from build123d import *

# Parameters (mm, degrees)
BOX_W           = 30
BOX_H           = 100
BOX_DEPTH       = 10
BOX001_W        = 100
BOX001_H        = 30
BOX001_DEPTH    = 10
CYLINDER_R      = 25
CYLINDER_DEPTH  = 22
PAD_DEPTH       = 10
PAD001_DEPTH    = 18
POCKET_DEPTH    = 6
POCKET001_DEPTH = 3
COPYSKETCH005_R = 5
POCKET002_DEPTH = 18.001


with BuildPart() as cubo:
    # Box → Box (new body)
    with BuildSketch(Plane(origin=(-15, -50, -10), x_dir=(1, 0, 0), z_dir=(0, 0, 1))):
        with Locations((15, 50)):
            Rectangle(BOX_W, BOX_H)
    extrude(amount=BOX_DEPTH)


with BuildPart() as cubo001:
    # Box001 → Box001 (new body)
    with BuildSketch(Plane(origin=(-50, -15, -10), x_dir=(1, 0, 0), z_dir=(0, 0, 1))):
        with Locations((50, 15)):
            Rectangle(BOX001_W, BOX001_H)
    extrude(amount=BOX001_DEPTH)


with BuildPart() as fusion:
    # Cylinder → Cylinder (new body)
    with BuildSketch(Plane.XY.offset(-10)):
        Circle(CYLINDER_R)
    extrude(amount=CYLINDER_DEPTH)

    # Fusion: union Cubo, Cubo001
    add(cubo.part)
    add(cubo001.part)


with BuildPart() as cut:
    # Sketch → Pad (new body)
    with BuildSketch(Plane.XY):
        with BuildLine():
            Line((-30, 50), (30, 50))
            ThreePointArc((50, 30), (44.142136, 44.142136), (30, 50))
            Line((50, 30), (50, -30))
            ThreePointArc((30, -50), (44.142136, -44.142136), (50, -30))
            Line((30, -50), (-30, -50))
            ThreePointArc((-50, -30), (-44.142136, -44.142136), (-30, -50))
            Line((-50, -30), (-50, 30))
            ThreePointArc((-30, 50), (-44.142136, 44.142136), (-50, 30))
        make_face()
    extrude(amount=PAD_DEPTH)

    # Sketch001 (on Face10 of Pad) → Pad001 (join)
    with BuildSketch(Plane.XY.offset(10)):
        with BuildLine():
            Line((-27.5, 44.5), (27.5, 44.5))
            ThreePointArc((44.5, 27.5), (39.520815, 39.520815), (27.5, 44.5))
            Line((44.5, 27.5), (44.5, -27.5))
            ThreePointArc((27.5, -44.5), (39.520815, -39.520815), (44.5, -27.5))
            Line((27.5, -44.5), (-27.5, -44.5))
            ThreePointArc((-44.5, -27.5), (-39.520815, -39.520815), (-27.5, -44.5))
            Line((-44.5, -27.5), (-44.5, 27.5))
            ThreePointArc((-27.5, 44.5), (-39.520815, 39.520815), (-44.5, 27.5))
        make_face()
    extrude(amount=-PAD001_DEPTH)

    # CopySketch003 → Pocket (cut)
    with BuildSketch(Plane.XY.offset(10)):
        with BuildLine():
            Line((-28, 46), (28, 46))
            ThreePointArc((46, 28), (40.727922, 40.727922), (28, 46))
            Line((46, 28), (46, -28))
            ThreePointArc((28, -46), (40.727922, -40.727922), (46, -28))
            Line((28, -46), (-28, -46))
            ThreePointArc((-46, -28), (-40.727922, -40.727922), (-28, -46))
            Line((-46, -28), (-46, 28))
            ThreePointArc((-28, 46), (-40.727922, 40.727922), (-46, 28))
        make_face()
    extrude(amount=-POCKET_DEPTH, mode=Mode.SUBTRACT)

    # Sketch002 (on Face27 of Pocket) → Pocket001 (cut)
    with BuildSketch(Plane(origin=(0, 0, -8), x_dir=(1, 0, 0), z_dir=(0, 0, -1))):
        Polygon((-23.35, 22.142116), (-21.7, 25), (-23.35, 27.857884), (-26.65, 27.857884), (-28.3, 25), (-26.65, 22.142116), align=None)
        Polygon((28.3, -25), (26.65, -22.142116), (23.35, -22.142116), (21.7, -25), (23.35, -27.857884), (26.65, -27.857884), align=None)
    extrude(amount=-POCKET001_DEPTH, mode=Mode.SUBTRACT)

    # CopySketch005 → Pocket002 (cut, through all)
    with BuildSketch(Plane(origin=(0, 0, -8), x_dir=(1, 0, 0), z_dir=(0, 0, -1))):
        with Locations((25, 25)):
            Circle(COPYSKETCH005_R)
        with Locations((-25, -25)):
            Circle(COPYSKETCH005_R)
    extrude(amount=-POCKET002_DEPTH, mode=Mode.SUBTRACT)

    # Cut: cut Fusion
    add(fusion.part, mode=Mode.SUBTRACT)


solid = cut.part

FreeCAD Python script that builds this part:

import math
import FreeCAD as App
import Part
import Sketcher

V = App.Vector
Q = App.Units.Quantity

doc = App.newDocument("Part")
body = doc.addObject("PartDesign::Body", "Body")

# Sketch on XY plane
sketch1 = doc.addObject("Sketcher::SketchObject", "Sketch")
body.addObject(sketch1)
sketch1.AttachmentSupport = (doc.XY_Plane, [""])
sketch1.MapMode = "FlatFace"
sketch1.AttachmentOffset = App.Placement(V(0, 0, -10), App.Rotation())
sketch1.addGeometry([
    Part.LineSegment(V(-15, 50, 0), V(-15, -50, 0)),
    Part.LineSegment(V(-15, -50, 0), V(15, -50, 0)),
    Part.LineSegment(V(15, -50, 0), V(15, 50, 0)),
    Part.LineSegment(V(15, 50, 0), V(-15, 50, 0)),
], False)
sketch1.addConstraint([
    Sketcher.Constraint("Coincident", 0, 2, 1, 1),
    Sketcher.Constraint("Coincident", 1, 2, 2, 1),
    Sketcher.Constraint("Coincident", 2, 2, 3, 1),
    Sketcher.Constraint("Coincident", 3, 2, 0, 1),
    Sketcher.Constraint("Vertical", 0),
    Sketcher.Constraint("Horizontal", 1),
    Sketcher.Constraint("Vertical", 2),
    Sketcher.Constraint("Horizontal", 3),
    Sketcher.Constraint("Symmetric", 0, 2, 2, 2, -1, 1),
    Sketcher.Constraint("DistanceX", 1, 1, 1, 2, 30.0),
    Sketcher.Constraint("DistanceY", 0, 2, 0, 1, 100.0),
])
pad1 = doc.addObject("PartDesign::Pad", "Pad")
body.addObject(pad1)
pad1.Profile = sketch1
pad1.Length = 10
body2 = doc.addObject("PartDesign::Body", "Body001")

# Sketch on XY plane
sketch2 = doc.addObject("Sketcher::SketchObject", "Sketch001")
body2.addObject(sketch2)
sketch2.AttachmentSupport = (doc.getObject("XY_Plane001"), [""])
sketch2.MapMode = "FlatFace"
sketch2.AttachmentOffset = App.Placement(V(0, 0, -10), App.Rotation())
sketch2.addGeometry([
    Part.LineSegment(V(-50, 15, 0), V(-50, -15, 0)),
    Part.LineSegment(V(-50, -15, 0), V(50, -15, 0)),
    Part.LineSegment(V(50, -15, 0), V(50, 15, 0)),
    Part.LineSegment(V(50, 15, 0), V(-50, 15, 0)),
], False)
sketch2.addConstraint([
    Sketcher.Constraint("Coincident", 0, 2, 1, 1),
    Sketcher.Constraint("Coincident", 1, 2, 2, 1),
    Sketcher.Constraint("Coincident", 2, 2, 3, 1),
    Sketcher.Constraint("Coincident", 3, 2, 0, 1),
    Sketcher.Constraint("Vertical", 0),
    Sketcher.Constraint("Horizontal", 1),
    Sketcher.Constraint("Vertical", 2),
    Sketcher.Constraint("Horizontal", 3),
    Sketcher.Constraint("Symmetric", 0, 2, 2, 2, -1, 1),
    Sketcher.Constraint("DistanceX", 1, 1, 1, 2, 100.0),
    Sketcher.Constraint("DistanceY", 0, 2, 0, 1, 30.0),
])
pad2 = doc.addObject("PartDesign::Pad", "Pad001")
body2.addObject(pad2)
pad2.Profile = sketch2
pad2.Length = 10
body3 = doc.addObject("PartDesign::Body", "Body002")

# Sketch on XY plane
sketch3 = doc.addObject("Sketcher::SketchObject", "Sketch002")
body3.addObject(sketch3)
sketch3.AttachmentSupport = (doc.getObject("XY_Plane002"), [""])
sketch3.MapMode = "FlatFace"
sketch3.AttachmentOffset = App.Placement(V(0, 0, -10), App.Rotation())
sketch3.addGeometry(Part.Circle(V(0, 0, 0), V(0, 0, 1), 25), False)
sketch3.addConstraint([
    Sketcher.Constraint("Coincident", 0, 3, -1, 1),
    Sketcher.Constraint("Diameter", 0, 50.0),
])
pad3 = doc.addObject("PartDesign::Pad", "Pad002")
body3.addObject(pad3)
pad3.Profile = sketch3
pad3.Length = 22
doc.recompute()

boolean = doc.addObject("PartDesign::Boolean", "Boolean")
body3.addObject(boolean)
boolean.Type = "Fuse"
boolean.addObjects([body])
doc.recompute()

boolean2 = doc.addObject("PartDesign::Boolean", "Boolean001")
body3.addObject(boolean2)
boolean2.Type = "Fuse"
boolean2.addObjects([body2])
body4 = doc.addObject("PartDesign::Body", "Body003")

# Sketch on XY plane
sketch4 = doc.addObject("Sketcher::SketchObject", "Sketch003")
body4.addObject(sketch4)
sketch4.AttachmentSupport = (doc.getObject("XY_Plane003"), [""])
sketch4.MapMode = "FlatFace"
sketch4.addGeometry([
    Part.LineSegment(V(30, 50, 0), V(-30, 50, 0)),  # 0
    Part.ArcOfCircle(Part.Circle(V(-30, 30, 0), V(0, 0, 1), 20), math.radians(90), math.radians(180)),  # 1
    Part.LineSegment(V(-50, 30, 0), V(-50, -30, 0)),  # 2
    Part.ArcOfCircle(Part.Circle(V(-30, -30, 0), V(0, 0, 1), 20), math.radians(180), math.radians(270)),  # 3
    Part.LineSegment(V(-30, -50, 0), V(30, -50, 0)),  # 4
    Part.ArcOfCircle(Part.Circle(V(30, -30, 0), V(0, 0, 1), 20), math.radians(-90), math.radians(0)),  # 5
    Part.LineSegment(V(50, -30, 0), V(50, 30, 0)),  # 6
    Part.ArcOfCircle(Part.Circle(V(30, 30, 0), V(0, 0, 1), 20), math.radians(0), math.radians(90)),  # 7
], False)
sketch4.addConstraint([
    Sketcher.Constraint("Tangent", 0, 2, 1, 1),
    Sketcher.Constraint("Tangent", 1, 2, 2, 1),
    Sketcher.Constraint("Tangent", 2, 2, 3, 1),
    Sketcher.Constraint("Tangent", 3, 2, 4, 1),
    Sketcher.Constraint("Tangent", 4, 2, 5, 1),
    Sketcher.Constraint("Tangent", 5, 2, 6, 1),
    Sketcher.Constraint("Tangent", 6, 2, 7, 1),
    Sketcher.Constraint("Tangent", 7, 2, 0, 1),
    Sketcher.Constraint("Horizontal", 0),
    Sketcher.Constraint("Vertical", 2),
    Sketcher.Constraint("Horizontal", 4),
    Sketcher.Constraint("Vertical", 6),
    Sketcher.Constraint("Equal", 1, 3),
    Sketcher.Constraint("Equal", 3, 5),
    Sketcher.Constraint("Equal", 5, 7),
    Sketcher.Constraint("Symmetric", 1, 3, 5, 3, -1, 1),
    Sketcher.Constraint("Equal", 4, 2),
    Sketcher.Constraint("Radius", 1, 19.999999),
    Sketcher.Constraint("DistanceX", 0, 2, 0, 1, 60.0),
])
pad4 = doc.addObject("PartDesign::Pad", "Pad003")
body4.addObject(pad4)
pad4.Profile = sketch4
pad4.Length = 10

# Sketch on XY plane
sketch5 = doc.addObject("Sketcher::SketchObject", "Sketch004")
body4.addObject(sketch5)
sketch5.AttachmentSupport = (doc.getObject("XY_Plane003"), [""])
sketch5.MapMode = "FlatFace"
sketch5.AttachmentOffset = App.Placement(V(0, 0, 10), App.Rotation())
sketch5.addGeometry([
    Part.LineSegment(V(28, 44, 0), V(-28, 44, 0)),  # 0
    Part.ArcOfCircle(Part.Circle(V(-27, 27, 0), V(0, 0, 1), 17), math.radians(90), math.radians(180)),  # 1
    Part.LineSegment(V(-44, 28, 0), V(-44, -28, 0)),  # 2
    Part.ArcOfCircle(Part.Circle(V(-27, -27, 0), V(0, 0, 1), 17), math.radians(-180), math.radians(-90)),  # 3
    Part.LineSegment(V(-28, -44, 0), V(28, -44, 0)),  # 4
    Part.ArcOfCircle(Part.Circle(V(27, -27, 0), V(0, 0, 1), 17), math.radians(-90), math.radians(0)),  # 5
    Part.LineSegment(V(44, -28, 0), V(44, 28, 0)),  # 6
    Part.ArcOfCircle(Part.Circle(V(27, 27, 0), V(0, 0, 1), 17), math.radians(0), math.radians(90)),  # 7
], False)
sketch5.addConstraint([
    Sketcher.Constraint("Tangent", 0, 2, 1, 1),
    Sketcher.Constraint("Tangent", 1, 2, 2, 1),
    Sketcher.Constraint("Tangent", 2, 2, 3, 1),
    Sketcher.Constraint("Tangent", 3, 2, 4, 1),
    Sketcher.Constraint("Tangent", 4, 2, 5, 1),
    Sketcher.Constraint("Tangent", 5, 2, 6, 1),
    Sketcher.Constraint("Tangent", 6, 2, 7, 1),
    Sketcher.Constraint("Tangent", 7, 2, 0, 1),
    Sketcher.Constraint("Horizontal", 0),
    Sketcher.Constraint("Vertical", 2),
    Sketcher.Constraint("Horizontal", 4),
    Sketcher.Constraint("Vertical", 6),
    Sketcher.Constraint("Equal", 1, 3),
    Sketcher.Constraint("Equal", 3, 5),
    Sketcher.Constraint("Equal", 5, 7),
    Sketcher.Constraint("Symmetric", 1, 3, 5, 3, -1, 1),
    Sketcher.Constraint("Equal", 4, 2),
    Sketcher.Constraint("Radius", 1, 17.000001),
    Sketcher.Constraint("DistanceX", 0, 2, 0, 1, 55.0),
])
pad5 = doc.addObject("PartDesign::Pad", "Pad004")
body4.addObject(pad5)
pad5.Profile = sketch5
pad5.Length = 18
pad5.Reversed = True

# Sketch on XY plane
sketch6 = doc.addObject("Sketcher::SketchObject", "Sketch005")
body4.addObject(sketch6)
sketch6.AttachmentSupport = (doc.getObject("XY_Plane003"), [""])
sketch6.MapMode = "FlatFace"
sketch6.AttachmentOffset = App.Placement(V(0, 0, 10), App.Rotation())
sketch6.addGeometry([
    Part.LineSegment(V(28, 46, 0), V(-28, 46, 0)),  # 0
    Part.ArcOfCircle(Part.Circle(V(-28, 28, 0), V(0, 0, 1), 18), math.radians(90), math.radians(180)),  # 1
    Part.LineSegment(V(-46, 28, 0), V(-46, -28, 0)),  # 2
    Part.ArcOfCircle(Part.Circle(V(-28, -28, 0), V(0, 0, 1), 18), math.radians(-180), math.radians(-90)),  # 3
    Part.LineSegment(V(-28, -46, 0), V(28, -46, 0)),  # 4
    Part.ArcOfCircle(Part.Circle(V(28, -28, 0), V(0, 0, 1), 18), math.radians(-90), math.radians(0)),  # 5
    Part.LineSegment(V(46, -28, 0), V(46, 28, 0)),  # 6
    Part.ArcOfCircle(Part.Circle(V(28, 28, 0), V(0, 0, 1), 18), math.radians(0), math.radians(90)),  # 7
], False)
sketch6.addConstraint([
    Sketcher.Constraint("Tangent", 0, 2, 1, 1),
    Sketcher.Constraint("Tangent", 1, 2, 2, 1),
    Sketcher.Constraint("Tangent", 2, 2, 3, 1),
    Sketcher.Constraint("Tangent", 3, 2, 4, 1),
    Sketcher.Constraint("Tangent", 4, 2, 5, 1),
    Sketcher.Constraint("Tangent", 5, 2, 6, 1),
    Sketcher.Constraint("Tangent", 6, 2, 7, 1),
    Sketcher.Constraint("Tangent", 7, 2, 0, 1),
    Sketcher.Constraint("Horizontal", 0),
    Sketcher.Constraint("Vertical", 2),
    Sketcher.Constraint("Horizontal", 4),
    Sketcher.Constraint("Vertical", 6),
    Sketcher.Constraint("Equal", 1, 3),
    Sketcher.Constraint("Equal", 3, 5),
    Sketcher.Constraint("Equal", 5, 7),
    Sketcher.Constraint("Symmetric", 1, 3, 5, 3, -1, 1),
    Sketcher.Constraint("Equal", 4, 2),
    Sketcher.Constraint("Radius", 1, 18.0),
    Sketcher.Constraint("DistanceX", 0, 2, 0, 1, 56.0),
])
pocket1 = doc.addObject("PartDesign::Pocket", "Pocket")
body4.addObject(pocket1)
pocket1.Profile = sketch6
pocket1.Length = 6

# Sketch on XY plane
sketch7 = doc.addObject("Sketcher::SketchObject", "Sketch006")
body4.addObject(sketch7)
sketch7.AttachmentSupport = (doc.getObject("XY_Plane003"), [""])
sketch7.MapMode = "FlatFace"
sketch7.AttachmentOffset = App.Placement(V(0, 0, -8), App.Rotation())
sketch7.addGeometry([
    Part.LineSegment(V(-23.4, -22.1, 0), V(-21.7, -25, 0)),  # 0
    Part.LineSegment(V(-21.7, -25, 0), V(-23.4, -27.9, 0)),  # 1
    Part.LineSegment(V(-23.4, -27.9, 0), V(-26.6, -27.9, 0)),  # 2
    Part.LineSegment(V(-26.6, -27.9, 0), V(-28.3, -25, 0)),  # 3
    Part.LineSegment(V(-28.3, -25, 0), V(-26.6, -22.1, 0)),  # 4
    Part.LineSegment(V(-26.6, -22.1, 0), V(-23.4, -22.1, 0)),  # 5
    Part.LineSegment(V(28.3, 25, 0), V(26.6, 22.1, 0)),  # 6
    Part.LineSegment(V(26.6, 22.1, 0), V(23.4, 22.1, 0)),  # 7
    Part.LineSegment(V(23.4, 22.1, 0), V(21.7, 25, 0)),  # 8
    Part.LineSegment(V(21.7, 25, 0), V(23.4, 27.9, 0)),  # 9
    Part.LineSegment(V(23.4, 27.9, 0), V(26.6, 27.9, 0)),  # 10
    Part.LineSegment(V(26.6, 27.9, 0), V(28.3, 25, 0)),  # 11
], False)
sketch7.addConstraint([
    Sketcher.Constraint("Coincident", 0, 2, 1, 1),
    Sketcher.Constraint("Coincident", 1, 2, 2, 1),
    Sketcher.Constraint("Coincident", 2, 2, 3, 1),
    Sketcher.Constraint("Coincident", 3, 2, 4, 1),
    Sketcher.Constraint("Coincident", 4, 2, 5, 1),
    Sketcher.Constraint("Coincident", 5, 2, 0, 1),
    Sketcher.Constraint("Coincident", 6, 2, 7, 1),
    Sketcher.Constraint("Coincident", 7, 2, 8, 1),
    Sketcher.Constraint("Coincident", 8, 2, 9, 1),
    Sketcher.Constraint("Coincident", 9, 2, 10, 1),
    Sketcher.Constraint("Coincident", 10, 2, 11, 1),
    Sketcher.Constraint("Coincident", 11, 2, 6, 1),
    Sketcher.Constraint("Horizontal", 2),
    Sketcher.Constraint("Horizontal", 5),
    Sketcher.Constraint("Horizontal", 7),
    Sketcher.Constraint("Horizontal", 10),
    Sketcher.Constraint("Symmetric", 4, 2, 6, 2, -1, 1),
    Sketcher.Constraint("Symmetric", 0, 2, 8, 2, -1, 1),
    Sketcher.Constraint("Symmetric", 1, 2, 9, 2, -1, 1),
    Sketcher.Constraint("Symmetric", 3, 2, 11, 2, -1, 1),
    Sketcher.Constraint("Parallel", 0, 3),
    Sketcher.Constraint("Parallel", 1, 4),
    Sketcher.Constraint("Parallel", 3, 8),
    Sketcher.Constraint("Parallel", 8, 11),
    Sketcher.Constraint("Horizontal", 0, 2, 3, 2),
    Sketcher.Constraint("Vertical", 2, 2, 4, 2),
    Sketcher.Constraint("Vertical", 1, 2, 5, 2),
    Sketcher.Constraint("Angle", 0, Q("-60.000001 deg")),
    Sketcher.Constraint("DistanceX", 2, 2, 2, 1, 3.3),
    Sketcher.Constraint("DistanceY", 0, 2, -1, 1, 25.0),
    Sketcher.Constraint("DistanceX", 5, 2, 6, 2, 50.0),
    Sketcher.Constraint("Distance", 0, 3.3),
])
pocket2 = doc.addObject("PartDesign::Pocket", "Pocket001")
body4.addObject(pocket2)
pocket2.Profile = sketch7
pocket2.Length = 3
pocket2.Reversed = True

# Sketch on XY plane
sketch8 = doc.addObject("Sketcher::SketchObject", "Sketch007")
body4.addObject(sketch8)
sketch8.AttachmentSupport = (doc.getObject("XY_Plane003"), [""])
sketch8.MapMode = "FlatFace"
sketch8.AttachmentOffset = App.Placement(V(0, 0, -8), App.Rotation())
sketch8.addGeometry([
    Part.Circle(V(25, -25, 0), V(0, 0, 1), 5),
    Part.Circle(V(-25, 25, 0), V(0, 0, 1), 5),
], False)
sketch8.addConstraint([
    Sketcher.Constraint("Equal", 0, 1),
    Sketcher.Constraint("Symmetric", 0, 3, 1, 3, -1, 1),
    Sketcher.Constraint("Diameter", 0, 10.0),
    Sketcher.Constraint("DistanceX", -1, 1, 0, 3, 25.0),
    Sketcher.Constraint("DistanceY", 0, 3, -1, 1, 25.0),
])
pocket3 = doc.addObject("PartDesign::Pocket", "Pocket002")
body4.addObject(pocket3)
pocket3.Profile = sketch8
pocket3.Type = "ThroughAll"
pocket3.Reversed = True
doc.recompute()

boolean3 = doc.addObject("PartDesign::Boolean", "Boolean002")
body4.addObject(boolean3)
boolean3.Type = "Cut"
boolean3.addObjects([body3])

doc.recompute()
